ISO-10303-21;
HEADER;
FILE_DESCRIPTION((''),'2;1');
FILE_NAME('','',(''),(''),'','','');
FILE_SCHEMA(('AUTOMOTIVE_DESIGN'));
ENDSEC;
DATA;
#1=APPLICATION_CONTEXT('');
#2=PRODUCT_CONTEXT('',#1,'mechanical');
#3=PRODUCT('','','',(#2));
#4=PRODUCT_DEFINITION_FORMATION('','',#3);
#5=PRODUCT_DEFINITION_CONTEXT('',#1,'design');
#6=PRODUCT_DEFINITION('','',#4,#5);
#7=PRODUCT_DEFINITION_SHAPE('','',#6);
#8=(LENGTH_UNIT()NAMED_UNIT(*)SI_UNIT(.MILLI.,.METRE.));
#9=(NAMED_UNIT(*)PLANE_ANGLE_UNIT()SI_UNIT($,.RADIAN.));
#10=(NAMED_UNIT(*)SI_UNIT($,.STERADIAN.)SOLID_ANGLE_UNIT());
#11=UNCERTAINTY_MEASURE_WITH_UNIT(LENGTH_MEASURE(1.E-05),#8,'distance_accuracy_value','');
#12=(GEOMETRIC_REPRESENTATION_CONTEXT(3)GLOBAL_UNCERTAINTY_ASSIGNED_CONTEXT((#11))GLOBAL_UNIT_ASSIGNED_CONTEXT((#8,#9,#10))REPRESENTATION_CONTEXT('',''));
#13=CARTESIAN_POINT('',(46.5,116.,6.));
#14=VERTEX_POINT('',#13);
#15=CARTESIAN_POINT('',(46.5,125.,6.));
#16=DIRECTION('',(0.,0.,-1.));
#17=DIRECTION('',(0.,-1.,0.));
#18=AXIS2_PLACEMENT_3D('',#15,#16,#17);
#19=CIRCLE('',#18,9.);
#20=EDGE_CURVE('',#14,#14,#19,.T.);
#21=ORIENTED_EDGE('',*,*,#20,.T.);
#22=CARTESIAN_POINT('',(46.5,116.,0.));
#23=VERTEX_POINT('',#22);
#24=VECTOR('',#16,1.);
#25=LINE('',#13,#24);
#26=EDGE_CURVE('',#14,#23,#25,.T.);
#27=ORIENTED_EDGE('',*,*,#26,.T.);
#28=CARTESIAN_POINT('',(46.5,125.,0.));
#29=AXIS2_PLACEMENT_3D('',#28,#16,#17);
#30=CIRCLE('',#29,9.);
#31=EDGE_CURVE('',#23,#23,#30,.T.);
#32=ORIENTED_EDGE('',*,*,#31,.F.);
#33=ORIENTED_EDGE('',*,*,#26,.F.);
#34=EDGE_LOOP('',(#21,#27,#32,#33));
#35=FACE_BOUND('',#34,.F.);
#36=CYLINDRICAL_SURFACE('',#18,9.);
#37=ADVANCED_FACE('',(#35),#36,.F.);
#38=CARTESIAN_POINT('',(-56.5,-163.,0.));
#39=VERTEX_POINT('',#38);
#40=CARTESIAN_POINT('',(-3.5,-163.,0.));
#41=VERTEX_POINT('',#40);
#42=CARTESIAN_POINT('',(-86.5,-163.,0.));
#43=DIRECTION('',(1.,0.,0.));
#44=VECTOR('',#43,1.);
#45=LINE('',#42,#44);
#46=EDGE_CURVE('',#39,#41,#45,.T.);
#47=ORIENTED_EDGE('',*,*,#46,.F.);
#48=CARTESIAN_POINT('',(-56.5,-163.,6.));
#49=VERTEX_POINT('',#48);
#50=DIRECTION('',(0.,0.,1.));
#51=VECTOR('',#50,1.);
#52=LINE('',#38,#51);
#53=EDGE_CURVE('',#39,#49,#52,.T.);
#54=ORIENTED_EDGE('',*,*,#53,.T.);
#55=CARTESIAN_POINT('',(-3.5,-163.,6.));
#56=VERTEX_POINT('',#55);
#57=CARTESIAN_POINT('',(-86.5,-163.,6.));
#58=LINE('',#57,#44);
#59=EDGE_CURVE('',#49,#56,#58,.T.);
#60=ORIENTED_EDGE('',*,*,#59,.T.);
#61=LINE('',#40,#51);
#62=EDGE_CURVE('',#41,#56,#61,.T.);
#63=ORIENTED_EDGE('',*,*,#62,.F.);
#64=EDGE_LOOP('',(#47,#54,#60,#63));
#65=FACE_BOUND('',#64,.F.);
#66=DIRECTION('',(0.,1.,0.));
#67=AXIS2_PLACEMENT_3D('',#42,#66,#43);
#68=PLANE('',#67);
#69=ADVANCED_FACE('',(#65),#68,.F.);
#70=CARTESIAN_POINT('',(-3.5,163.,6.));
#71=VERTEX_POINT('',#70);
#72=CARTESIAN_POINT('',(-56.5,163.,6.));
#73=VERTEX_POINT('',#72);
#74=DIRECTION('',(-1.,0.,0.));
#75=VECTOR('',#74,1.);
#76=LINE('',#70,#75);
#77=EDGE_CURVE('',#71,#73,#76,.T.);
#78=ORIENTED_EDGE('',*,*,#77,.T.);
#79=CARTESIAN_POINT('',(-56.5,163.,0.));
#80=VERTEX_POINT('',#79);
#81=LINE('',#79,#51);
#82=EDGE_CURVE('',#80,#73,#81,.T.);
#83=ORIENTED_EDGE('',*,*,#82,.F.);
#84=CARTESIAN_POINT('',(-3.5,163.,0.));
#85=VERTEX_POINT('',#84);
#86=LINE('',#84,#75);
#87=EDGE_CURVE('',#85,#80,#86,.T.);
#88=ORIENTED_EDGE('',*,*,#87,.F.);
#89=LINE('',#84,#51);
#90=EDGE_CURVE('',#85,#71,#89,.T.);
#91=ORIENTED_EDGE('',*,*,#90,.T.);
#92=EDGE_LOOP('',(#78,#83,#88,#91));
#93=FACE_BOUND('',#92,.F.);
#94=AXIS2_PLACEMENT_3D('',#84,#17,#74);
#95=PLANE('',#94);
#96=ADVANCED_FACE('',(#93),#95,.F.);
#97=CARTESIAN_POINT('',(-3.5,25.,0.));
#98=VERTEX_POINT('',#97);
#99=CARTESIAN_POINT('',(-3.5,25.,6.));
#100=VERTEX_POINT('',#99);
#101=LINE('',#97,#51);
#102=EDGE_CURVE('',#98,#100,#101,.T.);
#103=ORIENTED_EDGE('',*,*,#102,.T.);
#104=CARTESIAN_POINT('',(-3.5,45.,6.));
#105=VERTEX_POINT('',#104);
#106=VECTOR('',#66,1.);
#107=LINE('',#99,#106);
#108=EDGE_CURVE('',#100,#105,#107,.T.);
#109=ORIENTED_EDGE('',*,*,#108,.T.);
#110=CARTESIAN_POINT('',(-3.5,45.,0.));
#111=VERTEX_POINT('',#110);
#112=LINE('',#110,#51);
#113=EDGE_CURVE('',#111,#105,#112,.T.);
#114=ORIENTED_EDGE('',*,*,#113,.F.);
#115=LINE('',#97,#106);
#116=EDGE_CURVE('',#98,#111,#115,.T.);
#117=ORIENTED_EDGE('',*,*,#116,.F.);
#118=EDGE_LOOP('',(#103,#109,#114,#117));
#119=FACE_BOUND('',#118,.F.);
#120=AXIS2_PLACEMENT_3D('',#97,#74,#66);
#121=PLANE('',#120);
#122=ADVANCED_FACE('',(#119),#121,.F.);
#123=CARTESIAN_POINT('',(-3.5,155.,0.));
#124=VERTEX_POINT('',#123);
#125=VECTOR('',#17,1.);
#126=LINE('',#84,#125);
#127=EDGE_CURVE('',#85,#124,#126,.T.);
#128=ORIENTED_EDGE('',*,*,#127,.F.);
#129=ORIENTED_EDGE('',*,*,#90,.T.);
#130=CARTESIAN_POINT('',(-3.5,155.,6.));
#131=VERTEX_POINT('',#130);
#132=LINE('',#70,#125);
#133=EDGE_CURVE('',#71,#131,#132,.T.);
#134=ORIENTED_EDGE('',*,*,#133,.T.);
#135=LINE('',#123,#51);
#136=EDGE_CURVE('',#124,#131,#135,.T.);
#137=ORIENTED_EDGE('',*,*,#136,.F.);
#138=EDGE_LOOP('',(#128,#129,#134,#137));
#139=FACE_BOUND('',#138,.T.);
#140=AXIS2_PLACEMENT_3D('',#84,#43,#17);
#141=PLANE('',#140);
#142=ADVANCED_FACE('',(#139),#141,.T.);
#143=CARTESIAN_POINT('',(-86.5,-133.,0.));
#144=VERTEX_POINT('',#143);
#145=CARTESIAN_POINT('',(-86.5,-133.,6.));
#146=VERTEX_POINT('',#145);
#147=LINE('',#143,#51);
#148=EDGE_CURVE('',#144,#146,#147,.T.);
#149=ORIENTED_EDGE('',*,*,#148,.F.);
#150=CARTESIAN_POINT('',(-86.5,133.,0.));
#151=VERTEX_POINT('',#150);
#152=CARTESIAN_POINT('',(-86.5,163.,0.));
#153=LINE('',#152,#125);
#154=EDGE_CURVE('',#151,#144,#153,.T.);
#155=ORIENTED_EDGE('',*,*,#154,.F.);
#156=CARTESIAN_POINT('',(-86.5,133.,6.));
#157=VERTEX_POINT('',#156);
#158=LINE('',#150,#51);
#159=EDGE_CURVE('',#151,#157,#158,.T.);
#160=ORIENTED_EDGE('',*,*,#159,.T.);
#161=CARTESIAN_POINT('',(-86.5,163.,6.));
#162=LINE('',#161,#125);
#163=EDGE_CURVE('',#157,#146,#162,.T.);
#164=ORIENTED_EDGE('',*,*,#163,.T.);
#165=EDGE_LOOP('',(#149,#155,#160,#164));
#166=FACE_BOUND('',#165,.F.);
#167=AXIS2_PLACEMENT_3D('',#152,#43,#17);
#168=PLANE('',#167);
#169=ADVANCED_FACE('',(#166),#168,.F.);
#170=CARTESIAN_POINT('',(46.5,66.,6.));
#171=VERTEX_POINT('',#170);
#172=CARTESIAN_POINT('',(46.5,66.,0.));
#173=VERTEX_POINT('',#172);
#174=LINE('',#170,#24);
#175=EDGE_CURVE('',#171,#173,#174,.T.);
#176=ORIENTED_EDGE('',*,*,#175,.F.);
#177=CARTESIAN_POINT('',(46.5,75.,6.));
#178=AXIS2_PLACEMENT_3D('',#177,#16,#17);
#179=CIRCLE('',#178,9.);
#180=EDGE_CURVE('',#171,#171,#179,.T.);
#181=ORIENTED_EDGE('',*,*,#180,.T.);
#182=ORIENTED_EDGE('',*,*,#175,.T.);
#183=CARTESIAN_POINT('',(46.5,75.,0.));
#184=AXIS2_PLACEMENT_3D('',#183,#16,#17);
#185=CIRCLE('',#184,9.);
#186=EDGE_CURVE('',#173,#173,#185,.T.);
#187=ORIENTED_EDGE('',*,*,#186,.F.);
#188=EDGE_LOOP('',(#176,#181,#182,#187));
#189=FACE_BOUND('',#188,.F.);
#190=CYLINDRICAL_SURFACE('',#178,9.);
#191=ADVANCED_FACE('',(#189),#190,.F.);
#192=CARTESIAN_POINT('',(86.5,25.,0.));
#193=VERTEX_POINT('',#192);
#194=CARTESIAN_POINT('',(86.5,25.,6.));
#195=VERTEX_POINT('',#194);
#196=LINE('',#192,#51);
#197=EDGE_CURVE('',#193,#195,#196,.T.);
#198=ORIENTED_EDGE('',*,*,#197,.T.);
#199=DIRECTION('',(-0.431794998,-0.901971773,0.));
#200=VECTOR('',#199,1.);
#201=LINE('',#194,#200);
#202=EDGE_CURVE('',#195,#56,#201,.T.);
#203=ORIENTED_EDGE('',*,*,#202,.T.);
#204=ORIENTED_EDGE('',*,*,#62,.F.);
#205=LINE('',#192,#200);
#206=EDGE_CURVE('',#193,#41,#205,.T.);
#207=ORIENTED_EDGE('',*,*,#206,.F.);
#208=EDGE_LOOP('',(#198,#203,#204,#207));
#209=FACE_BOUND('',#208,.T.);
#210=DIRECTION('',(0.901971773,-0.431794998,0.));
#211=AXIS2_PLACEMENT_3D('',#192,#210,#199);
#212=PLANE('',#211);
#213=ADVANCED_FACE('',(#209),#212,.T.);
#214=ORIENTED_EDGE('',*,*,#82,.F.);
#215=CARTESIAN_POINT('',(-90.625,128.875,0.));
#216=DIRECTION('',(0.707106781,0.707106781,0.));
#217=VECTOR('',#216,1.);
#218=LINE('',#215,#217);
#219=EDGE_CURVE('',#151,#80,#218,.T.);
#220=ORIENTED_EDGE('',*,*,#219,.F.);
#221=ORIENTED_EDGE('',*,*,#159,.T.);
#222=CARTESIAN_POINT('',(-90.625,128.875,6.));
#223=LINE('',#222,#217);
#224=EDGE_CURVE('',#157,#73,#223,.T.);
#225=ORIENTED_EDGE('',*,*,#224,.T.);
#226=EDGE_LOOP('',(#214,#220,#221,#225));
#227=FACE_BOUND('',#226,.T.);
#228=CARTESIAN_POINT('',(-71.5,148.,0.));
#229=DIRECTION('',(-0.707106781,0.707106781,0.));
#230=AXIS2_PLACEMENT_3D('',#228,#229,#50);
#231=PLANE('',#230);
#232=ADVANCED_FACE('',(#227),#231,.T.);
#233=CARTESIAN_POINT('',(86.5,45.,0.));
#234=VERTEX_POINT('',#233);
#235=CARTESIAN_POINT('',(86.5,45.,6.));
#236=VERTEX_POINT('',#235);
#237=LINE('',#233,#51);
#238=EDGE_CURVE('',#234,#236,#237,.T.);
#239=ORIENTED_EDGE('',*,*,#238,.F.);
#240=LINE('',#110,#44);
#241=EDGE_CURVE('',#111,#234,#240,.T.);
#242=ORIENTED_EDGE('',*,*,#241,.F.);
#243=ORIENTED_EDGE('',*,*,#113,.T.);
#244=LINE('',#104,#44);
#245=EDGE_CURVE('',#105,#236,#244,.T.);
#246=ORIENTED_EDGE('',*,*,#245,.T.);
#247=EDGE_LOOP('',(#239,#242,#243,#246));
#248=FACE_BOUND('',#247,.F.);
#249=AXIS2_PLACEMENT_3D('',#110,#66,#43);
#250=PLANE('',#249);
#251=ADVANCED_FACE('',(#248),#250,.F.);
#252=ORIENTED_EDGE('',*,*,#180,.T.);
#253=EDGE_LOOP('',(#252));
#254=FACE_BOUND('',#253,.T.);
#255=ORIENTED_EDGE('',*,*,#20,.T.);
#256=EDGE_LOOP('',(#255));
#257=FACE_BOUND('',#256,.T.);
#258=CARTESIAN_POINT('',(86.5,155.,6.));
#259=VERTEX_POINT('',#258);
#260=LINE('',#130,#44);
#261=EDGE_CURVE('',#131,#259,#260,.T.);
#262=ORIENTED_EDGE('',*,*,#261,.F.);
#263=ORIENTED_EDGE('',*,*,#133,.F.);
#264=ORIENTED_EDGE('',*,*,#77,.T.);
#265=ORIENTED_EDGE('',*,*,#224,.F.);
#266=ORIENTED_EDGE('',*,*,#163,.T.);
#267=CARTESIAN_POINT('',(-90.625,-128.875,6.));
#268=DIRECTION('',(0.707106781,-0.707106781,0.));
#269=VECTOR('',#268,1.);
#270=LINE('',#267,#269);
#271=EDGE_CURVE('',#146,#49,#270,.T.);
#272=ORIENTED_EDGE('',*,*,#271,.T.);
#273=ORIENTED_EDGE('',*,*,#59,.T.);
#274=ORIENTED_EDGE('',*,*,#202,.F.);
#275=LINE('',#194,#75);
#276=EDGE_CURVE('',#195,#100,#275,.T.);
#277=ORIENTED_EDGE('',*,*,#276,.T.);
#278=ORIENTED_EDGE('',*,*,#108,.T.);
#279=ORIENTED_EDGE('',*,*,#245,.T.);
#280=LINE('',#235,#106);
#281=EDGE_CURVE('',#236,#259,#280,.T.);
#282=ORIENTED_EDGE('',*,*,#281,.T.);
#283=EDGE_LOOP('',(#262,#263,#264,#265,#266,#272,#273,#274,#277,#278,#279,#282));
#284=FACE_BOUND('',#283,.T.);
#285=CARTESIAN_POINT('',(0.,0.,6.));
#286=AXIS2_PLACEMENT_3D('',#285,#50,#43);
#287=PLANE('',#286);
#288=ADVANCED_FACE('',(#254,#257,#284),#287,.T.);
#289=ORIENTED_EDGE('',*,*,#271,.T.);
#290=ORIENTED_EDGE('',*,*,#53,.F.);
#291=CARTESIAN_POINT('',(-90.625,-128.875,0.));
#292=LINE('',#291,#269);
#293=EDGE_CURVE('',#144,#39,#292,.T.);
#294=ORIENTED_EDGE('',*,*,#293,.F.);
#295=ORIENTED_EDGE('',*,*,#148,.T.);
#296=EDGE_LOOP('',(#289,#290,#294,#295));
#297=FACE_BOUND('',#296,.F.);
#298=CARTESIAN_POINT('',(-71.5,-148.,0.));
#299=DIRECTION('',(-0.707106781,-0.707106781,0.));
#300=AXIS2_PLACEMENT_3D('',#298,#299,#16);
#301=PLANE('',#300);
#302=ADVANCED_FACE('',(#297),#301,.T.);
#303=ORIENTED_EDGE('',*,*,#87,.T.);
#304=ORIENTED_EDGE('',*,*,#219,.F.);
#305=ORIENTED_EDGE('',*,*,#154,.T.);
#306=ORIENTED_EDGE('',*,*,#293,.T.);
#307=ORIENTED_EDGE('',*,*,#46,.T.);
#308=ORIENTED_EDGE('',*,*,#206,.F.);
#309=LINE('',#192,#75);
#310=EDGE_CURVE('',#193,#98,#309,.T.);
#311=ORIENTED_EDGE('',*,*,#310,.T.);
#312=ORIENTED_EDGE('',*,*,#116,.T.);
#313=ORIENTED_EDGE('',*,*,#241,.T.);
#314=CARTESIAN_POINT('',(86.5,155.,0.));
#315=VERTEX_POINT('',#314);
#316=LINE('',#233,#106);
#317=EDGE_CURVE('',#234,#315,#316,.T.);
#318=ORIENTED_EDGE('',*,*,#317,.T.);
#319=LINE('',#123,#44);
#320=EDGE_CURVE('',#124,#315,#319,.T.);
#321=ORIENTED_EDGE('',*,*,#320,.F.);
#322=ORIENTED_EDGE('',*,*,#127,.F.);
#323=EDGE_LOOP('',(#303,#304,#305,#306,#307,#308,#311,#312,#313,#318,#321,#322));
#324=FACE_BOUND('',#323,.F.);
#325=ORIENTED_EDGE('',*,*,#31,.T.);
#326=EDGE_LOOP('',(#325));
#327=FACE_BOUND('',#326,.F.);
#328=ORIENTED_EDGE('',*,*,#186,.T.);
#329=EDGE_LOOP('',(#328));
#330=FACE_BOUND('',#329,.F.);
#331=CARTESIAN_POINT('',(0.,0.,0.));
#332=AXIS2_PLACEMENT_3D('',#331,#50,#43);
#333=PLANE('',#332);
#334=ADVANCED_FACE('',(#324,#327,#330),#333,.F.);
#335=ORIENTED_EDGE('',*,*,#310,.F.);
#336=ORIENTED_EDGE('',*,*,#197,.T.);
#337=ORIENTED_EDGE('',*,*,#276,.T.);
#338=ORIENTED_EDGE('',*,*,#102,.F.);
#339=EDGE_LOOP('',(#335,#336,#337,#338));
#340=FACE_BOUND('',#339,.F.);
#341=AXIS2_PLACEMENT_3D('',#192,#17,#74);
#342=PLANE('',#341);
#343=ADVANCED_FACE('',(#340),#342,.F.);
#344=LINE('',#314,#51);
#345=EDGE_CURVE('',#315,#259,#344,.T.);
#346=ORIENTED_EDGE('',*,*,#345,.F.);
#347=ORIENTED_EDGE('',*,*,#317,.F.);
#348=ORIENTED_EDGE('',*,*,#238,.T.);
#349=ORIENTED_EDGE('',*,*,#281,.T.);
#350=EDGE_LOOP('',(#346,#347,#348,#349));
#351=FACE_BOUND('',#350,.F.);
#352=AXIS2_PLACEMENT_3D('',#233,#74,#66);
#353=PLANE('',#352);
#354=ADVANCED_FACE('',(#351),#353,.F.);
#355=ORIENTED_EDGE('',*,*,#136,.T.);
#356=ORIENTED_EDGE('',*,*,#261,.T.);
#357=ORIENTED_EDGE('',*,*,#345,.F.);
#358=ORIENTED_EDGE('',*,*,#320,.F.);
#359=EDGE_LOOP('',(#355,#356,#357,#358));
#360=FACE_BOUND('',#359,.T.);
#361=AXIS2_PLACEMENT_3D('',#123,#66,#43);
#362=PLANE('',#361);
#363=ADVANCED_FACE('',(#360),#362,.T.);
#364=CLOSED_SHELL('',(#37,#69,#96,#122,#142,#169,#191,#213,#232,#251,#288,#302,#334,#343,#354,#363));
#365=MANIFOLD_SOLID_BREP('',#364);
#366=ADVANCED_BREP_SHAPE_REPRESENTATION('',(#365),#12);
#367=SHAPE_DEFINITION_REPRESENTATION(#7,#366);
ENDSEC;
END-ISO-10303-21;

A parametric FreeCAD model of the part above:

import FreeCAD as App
import Part
import Sketcher
from FreeCAD import Vector
Q = App.Units.Quantity


def edges_at(feature, points):
    """Names of the edges that pass closest to the given points."""
    edges = feature.Shape.Edges
    near = lambda p: min(range(len(edges)), key=lambda i: edges[i].distToShape(Part.Vertex(*p))[0])
    return sorted({f"Edge{near(p) + 1}" for p in points})


def add_polygon(sketch, points):
    """Adds a closed chain of lines whose ends are joined by coincident constraints."""
    first, n = sketch.GeometryCount, len(points)
    for a, b in zip(points, points[1:] + points[:1]):
        sketch.addGeometry(Part.LineSegment(App.Vector(*a, 0), App.Vector(*b, 0)), False)
    for i in range(n):
        sketch.addConstraint(Sketcher.Constraint("Coincident", first + i, 2, first + (i + 1) % n, 1))

doc = App.newDocument("Part")
params = doc.addObject("Spreadsheet::Sheet", "Params")
for row, (alias, value) in enumerate([
    ("sketch1_width", "83 mm"),
    ("sketch1_width2", "90 mm"),
    ("sketch1_height", "20 mm"),
    ("sketch1_height2", "326 mm"),
    ("sketch1_height3", "110 mm"),
    ("pad1_length", "6 mm"),
    ("chamfer_size", "30 mm"),
    ("sketch2_diameter", "18 mm"),
    ("hole_diameter", "18 mm"),
], start=1):
    params.set(f"A{row}", alias)
    params.set(f"B{row}", "=" + value)
    params.setAlias(f"B{row}", alias)

body = doc.addObject("PartDesign::Body", "Body")

# Sketch on XY plane
sketch1 = doc.addObject("Sketcher::SketchObject", "Sketch")
body.addObject(sketch1)
sketch1.AttachmentSupport = (doc.XY_Plane, [""])
sketch1.MapMode = "FlatFace"
add_polygon(sketch1, [(-86, 163), (-86, -163), (-4, -163), (86, 25), (-4, 25), (-4, 45), (86, 45), (86, 155), (-4, 155), (-4, 163)])  # lines 0-9
sketch1.addConstraint(Sketcher.Constraint("Vertical", 0))
sketch1.addConstraint(Sketcher.Constraint("Horizontal", 1))
sketch1.addConstraint(Sketcher.Constraint("Horizontal", 3))
sketch1.addConstraint(Sketcher.Constraint("Vertical", 4))
sketch1.addConstraint(Sketcher.Constraint("Horizontal", 5))
sketch1.addConstraint(Sketcher.Constraint("Vertical", 6))
sketch1.addConstraint(Sketcher.Constraint("Horizontal", 7))
sketch1.addConstraint(Sketcher.Constraint("Vertical", 8))
sketch1.addConstraint(Sketcher.Constraint("Horizontal", 9))
sketch1.addConstraint(Sketcher.Constraint("Symmetric", 1, 2, 8, 2, -1))
sketch1.addConstraint(Sketcher.Constraint("Vertical", 1, 2, 3, 2))
sketch1.addConstraint(Sketcher.Constraint("Vertical", 2, 2, 5, 2))
sketch1.addConstraint(Sketcher.Constraint("DistanceX", 1, 1, 1, 2, Q("83 mm")))
sketch1.addConstraint(Sketcher.Constraint("DistanceX", 3, 2, 3, 1, Q("90 mm")))
sketch1.addConstraint(Sketcher.Constraint("DistanceY", 4, 1, 4, 2, Q("20 mm")))
sketch1.addConstraint(Sketcher.Constraint("DistanceY", 0, 2, 0, 1, Q("326 mm")))
sketch1.addConstraint(Sketcher.Constraint("DistanceY", 6, 1, 6, 2, Q("110 mm")))
sketch1.addConstraint(Sketcher.Constraint("DistanceY", 8, 1, 8, 2, Q("8 mm")))
sketch1.addConstraint(Sketcher.Constraint("DistanceX", 0, 2, -1, 1, Q("86.5 mm")))
sketch1.setExpression("Constraints[22]", "Params.sketch1_width")
sketch1.setExpression("Constraints[23]", "Params.sketch1_width2")
sketch1.setExpression("Constraints[24]", "Params.sketch1_height")
sketch1.setExpression("Constraints[25]", "Params.sketch1_height2")
sketch1.setExpression("Constraints[26]", "Params.sketch1_height3")
pad1 = doc.addObject("PartDesign::Pad", "Pad")
body.addObject(pad1)
pad1.Profile = sketch1
pad1.setExpression("Length", "Params.pad1_length")
doc.recompute()

chamfer = doc.addObject("PartDesign::Chamfer", "Chamfer")
body.addObject(chamfer)
chamfer.Base = (pad1, edges_at(pad1, [(-86.5, -163, 3), (-86.5, 163, 3)]))
chamfer.setExpression("Size", "Params.chamfer_size")

# Sketch on XY plane
sketch2 = doc.addObject("Sketcher::SketchObject", "Sketch001")
body.addObject(sketch2)
sketch2.AttachmentSupport = (doc.XY_Plane, [""])
sketch2.MapMode = "FlatFace"
sketch2.AttachmentOffset = App.Placement(Vector(0, 0, 6), App.Rotation())
sketch2.addGeometry(Part.Circle(Vector(46, 125, 0), Vector(0, 0, 1), 9), False)
sketch2.addGeometry(Part.Circle(Vector(46, 75, 0), Vector(0, 0, 1), 9), False)
sketch2.addConstraint(Sketcher.Constraint("Equal", 0, 1))
sketch2.addConstraint(Sketcher.Constraint("Vertical", 0, 3, 1, 3))
sketch2.addConstraint(Sketcher.Constraint("Diameter", 0, Q("18 mm")))
sketch2.addConstraint(Sketcher.Constraint("DistanceY", -1, 1, 0, 3, Q("125 mm")))
sketch2.addConstraint(Sketcher.Constraint("DistanceY", -1, 1, 1, 3, Q("75 mm")))
sketch2.addConstraint(Sketcher.Constraint("DistanceX", -1, 1, 0, 3, Q("46.5 mm")))
sketch2.setExpression("Constraints[2]", "Params.sketch2_diameter")
doc.recompute()
hole = doc.addObject("PartDesign::Hole", "Hole")
body.addObject(hole)
hole.Profile = sketch2
hole.ThreadType = "None"
hole.setExpression("Diameter", "Params.hole_diameter")
hole.DepthType = "ThroughAll"

doc.recompute()
